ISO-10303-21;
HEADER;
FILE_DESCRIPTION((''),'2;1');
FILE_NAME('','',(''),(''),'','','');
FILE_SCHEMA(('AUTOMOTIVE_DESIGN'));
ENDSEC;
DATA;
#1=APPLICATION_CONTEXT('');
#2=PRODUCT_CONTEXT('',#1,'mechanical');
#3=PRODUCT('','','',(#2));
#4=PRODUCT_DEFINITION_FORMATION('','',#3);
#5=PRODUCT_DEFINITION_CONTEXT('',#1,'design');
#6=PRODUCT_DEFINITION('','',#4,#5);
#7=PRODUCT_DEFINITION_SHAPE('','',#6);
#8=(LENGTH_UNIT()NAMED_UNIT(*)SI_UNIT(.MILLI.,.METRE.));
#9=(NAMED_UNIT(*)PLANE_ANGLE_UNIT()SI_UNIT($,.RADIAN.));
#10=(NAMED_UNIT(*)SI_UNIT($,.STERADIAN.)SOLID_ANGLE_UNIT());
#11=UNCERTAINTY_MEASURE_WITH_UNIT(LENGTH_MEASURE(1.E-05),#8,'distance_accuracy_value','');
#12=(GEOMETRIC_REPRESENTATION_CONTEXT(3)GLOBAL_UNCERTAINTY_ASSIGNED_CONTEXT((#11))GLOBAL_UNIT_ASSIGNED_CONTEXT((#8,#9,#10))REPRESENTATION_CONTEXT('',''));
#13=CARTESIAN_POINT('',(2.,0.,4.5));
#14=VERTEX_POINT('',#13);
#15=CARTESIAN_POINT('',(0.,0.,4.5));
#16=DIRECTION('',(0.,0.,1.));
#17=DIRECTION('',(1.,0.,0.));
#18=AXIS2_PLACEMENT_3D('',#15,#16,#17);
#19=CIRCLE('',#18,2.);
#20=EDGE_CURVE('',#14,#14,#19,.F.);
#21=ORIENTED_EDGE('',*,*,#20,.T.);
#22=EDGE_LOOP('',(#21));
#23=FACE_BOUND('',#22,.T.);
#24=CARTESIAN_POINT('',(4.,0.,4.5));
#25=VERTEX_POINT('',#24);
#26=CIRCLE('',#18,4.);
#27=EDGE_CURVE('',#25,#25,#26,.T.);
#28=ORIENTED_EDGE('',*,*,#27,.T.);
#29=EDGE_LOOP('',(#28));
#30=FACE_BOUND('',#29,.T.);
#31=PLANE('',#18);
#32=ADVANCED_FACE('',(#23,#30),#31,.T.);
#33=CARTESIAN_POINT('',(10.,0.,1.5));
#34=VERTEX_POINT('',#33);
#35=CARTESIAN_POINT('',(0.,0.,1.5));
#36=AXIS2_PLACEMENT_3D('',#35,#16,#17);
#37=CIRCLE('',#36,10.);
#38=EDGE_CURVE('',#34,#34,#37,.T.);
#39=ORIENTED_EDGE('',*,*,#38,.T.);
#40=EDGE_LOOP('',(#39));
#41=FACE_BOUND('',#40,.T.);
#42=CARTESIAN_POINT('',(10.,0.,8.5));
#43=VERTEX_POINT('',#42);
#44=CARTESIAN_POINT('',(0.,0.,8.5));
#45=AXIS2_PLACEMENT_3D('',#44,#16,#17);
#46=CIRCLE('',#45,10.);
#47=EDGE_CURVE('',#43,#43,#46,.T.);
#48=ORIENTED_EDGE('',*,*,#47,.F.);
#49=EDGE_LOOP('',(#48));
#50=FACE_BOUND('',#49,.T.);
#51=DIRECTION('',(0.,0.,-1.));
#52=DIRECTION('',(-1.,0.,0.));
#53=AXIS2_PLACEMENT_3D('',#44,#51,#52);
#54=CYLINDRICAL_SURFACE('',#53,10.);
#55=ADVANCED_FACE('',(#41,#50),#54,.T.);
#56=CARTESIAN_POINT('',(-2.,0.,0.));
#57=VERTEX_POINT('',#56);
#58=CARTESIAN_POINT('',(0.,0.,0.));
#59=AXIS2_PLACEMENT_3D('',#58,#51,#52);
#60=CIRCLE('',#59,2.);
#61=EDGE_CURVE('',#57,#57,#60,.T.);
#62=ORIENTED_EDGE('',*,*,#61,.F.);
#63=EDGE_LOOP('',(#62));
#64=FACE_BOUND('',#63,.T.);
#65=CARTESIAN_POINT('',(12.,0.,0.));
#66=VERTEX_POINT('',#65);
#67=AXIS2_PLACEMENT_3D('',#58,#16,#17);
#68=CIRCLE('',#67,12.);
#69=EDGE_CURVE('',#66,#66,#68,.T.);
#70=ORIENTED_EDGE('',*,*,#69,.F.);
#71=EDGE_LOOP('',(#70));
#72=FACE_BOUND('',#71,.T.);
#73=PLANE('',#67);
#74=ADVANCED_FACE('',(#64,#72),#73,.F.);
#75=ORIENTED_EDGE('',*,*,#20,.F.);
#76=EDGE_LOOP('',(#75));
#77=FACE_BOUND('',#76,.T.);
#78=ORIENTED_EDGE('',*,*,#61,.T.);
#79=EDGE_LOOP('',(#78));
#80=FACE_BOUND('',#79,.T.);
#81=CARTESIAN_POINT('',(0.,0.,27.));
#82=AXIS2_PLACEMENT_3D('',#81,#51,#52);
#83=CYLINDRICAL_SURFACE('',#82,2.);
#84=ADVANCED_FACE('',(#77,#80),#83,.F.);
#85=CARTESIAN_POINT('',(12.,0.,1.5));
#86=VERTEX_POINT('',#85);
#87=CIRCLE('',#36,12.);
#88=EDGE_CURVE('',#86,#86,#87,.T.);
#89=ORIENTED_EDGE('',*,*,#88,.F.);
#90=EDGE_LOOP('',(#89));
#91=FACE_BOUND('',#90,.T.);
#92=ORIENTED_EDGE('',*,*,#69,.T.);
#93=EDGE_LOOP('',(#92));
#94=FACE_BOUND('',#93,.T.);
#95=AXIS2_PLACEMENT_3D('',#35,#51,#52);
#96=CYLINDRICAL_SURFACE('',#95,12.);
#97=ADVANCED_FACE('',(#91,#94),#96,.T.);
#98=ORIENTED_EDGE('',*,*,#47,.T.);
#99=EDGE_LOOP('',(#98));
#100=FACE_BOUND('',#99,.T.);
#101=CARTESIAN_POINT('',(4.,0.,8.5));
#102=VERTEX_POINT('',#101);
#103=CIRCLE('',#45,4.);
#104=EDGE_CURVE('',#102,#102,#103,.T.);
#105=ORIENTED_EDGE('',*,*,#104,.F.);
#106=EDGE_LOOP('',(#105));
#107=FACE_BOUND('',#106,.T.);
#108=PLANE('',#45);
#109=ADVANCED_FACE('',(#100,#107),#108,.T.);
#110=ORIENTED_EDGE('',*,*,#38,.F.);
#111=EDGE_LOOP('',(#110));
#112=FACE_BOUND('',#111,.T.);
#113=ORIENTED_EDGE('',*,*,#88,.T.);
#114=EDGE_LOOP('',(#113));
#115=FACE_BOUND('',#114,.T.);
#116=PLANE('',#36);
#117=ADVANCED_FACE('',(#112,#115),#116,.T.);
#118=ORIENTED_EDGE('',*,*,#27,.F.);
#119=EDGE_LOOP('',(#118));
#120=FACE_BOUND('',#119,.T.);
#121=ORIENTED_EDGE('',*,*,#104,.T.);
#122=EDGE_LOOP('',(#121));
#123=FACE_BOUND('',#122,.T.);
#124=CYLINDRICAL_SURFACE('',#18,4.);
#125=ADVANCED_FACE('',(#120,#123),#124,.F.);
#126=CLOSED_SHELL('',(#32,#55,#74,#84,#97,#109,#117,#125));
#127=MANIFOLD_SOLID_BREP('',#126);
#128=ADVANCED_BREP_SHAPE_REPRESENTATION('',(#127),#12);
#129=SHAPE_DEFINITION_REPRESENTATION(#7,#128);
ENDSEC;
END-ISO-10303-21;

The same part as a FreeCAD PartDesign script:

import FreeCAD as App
import Part
import Sketcher

V = App.Vector
Q = App.Units.Quantity

doc = App.newDocument("Part")
params = doc.addObject("Spreadsheet::Sheet", "Params")
for row, (alias, value) in enumerate([
    ("sketch1_diameter", "24 mm"),
    ("pad1_length", "1.5 mm"),
    ("sketch2_diameter", "20 mm"),
    ("pad2_length", "7 mm"),
    ("sketch3_diameter", "4 mm"),
    ("pocket1_length", "27 mm"),
    ("sketch4_diameter", "8 mm"),
    ("pocket2_length", "4 mm"),
], start=1):
    params.set(f"A{row}", alias)
    params.set(f"B{row}", "=" + value)
    params.setAlias(f"B{row}", alias)

body = doc.addObject("PartDesign::Body", "Body")

# Sketch on XY plane
sketch1 = body.newObject("Sketcher::SketchObject", "Sketch")
sketch1.AttachmentSupport = (doc.getObject("XY_Plane"), [""])
sketch1.MapMode = "FlatFace"
sketch1.addGeometry(Part.Circle(V(0, 0, 0), V(0, 0, 1), 12), False)
sketch1.addConstraint([
    Sketcher.Constraint("Coincident", 0, 3, -1, 1),
    Sketcher.Constraint("Diameter", 0, Q("24 mm")),
])
sketch1.setExpression("Constraints[1]", "Params.sketch1_diameter")
pad1 = body.newObject("PartDesign::Pad", "Pad")
pad1.Profile = sketch1
pad1.setExpression("Length", "Params.pad1_length")

# Sketch on XY plane
sketch2 = body.newObject("Sketcher::SketchObject", "Sketch001")
sketch2.AttachmentSupport = (doc.getObject("XY_Plane"), [""])
sketch2.MapMode = "FlatFace"
sketch2.AttachmentOffset = App.Placement(V(0, 0, 1.5), App.Rotation())
sketch2.addGeometry(Part.Circle(V(0, 0, 0), V(0, 0, 1), 10), False)
sketch2.addConstraint([
    Sketcher.Constraint("Coincident", 0, 3, -1, 1),
    Sketcher.Constraint("Diameter", 0, Q("20 mm")),
])
sketch2.setExpression("Constraints[1]", "Params.sketch2_diameter")
pad2 = body.newObject("PartDesign::Pad", "Pad001")
pad2.Profile = sketch2
pad2.setExpression("Length", "Params.pad2_length")

# Sketch on XY plane
sketch3 = body.newObject("Sketcher::SketchObject", "Sketch002")
sketch3.AttachmentSupport = (doc.getObject("XY_Plane"), [""])
sketch3.MapMode = "FlatFace"
sketch3.addGeometry(Part.Circle(V(0, 0, 0), V(0, 0, 1), 2), False)
sketch3.addConstraint([
    Sketcher.Constraint("Coincident", 0, 3, -1, 1),
    Sketcher.Constraint("Diameter", 0, Q("4 mm")),
])
sketch3.setExpression("Constraints[1]", "Params.sketch3_diameter")
pocket1 = body.newObject("PartDesign::Pocket", "Pocket")
pocket1.Profile = sketch3
pocket1.setExpression("Length", "Params.pocket1_length")
pocket1.Reversed = True

# Sketch on XY plane
sketch4 = body.newObject("Sketcher::SketchObject", "Sketch003")
sketch4.AttachmentSupport = (doc.getObject("XY_Plane"), [""])
sketch4.MapMode = "FlatFace"
sketch4.AttachmentOffset = App.Placement(V(0, 0, 8.5), App.Rotation())
sketch4.addGeometry(Part.Circle(V(0, 0, 0), V(0, 0, 1), 4), False)
sketch4.addConstraint([
    Sketcher.Constraint("Coincident", 0, 3, -1, 1),
    Sketcher.Constraint("Diameter", 0, Q("8 mm")),
])
sketch4.setExpression("Constraints[1]", "Params.sketch4_diameter")
pocket2 = body.newObject("PartDesign::Pocket", "Pocket001")
pocket2.Profile = sketch4
pocket2.setExpression("Length", "Params.pocket2_length")

doc.recompute()
